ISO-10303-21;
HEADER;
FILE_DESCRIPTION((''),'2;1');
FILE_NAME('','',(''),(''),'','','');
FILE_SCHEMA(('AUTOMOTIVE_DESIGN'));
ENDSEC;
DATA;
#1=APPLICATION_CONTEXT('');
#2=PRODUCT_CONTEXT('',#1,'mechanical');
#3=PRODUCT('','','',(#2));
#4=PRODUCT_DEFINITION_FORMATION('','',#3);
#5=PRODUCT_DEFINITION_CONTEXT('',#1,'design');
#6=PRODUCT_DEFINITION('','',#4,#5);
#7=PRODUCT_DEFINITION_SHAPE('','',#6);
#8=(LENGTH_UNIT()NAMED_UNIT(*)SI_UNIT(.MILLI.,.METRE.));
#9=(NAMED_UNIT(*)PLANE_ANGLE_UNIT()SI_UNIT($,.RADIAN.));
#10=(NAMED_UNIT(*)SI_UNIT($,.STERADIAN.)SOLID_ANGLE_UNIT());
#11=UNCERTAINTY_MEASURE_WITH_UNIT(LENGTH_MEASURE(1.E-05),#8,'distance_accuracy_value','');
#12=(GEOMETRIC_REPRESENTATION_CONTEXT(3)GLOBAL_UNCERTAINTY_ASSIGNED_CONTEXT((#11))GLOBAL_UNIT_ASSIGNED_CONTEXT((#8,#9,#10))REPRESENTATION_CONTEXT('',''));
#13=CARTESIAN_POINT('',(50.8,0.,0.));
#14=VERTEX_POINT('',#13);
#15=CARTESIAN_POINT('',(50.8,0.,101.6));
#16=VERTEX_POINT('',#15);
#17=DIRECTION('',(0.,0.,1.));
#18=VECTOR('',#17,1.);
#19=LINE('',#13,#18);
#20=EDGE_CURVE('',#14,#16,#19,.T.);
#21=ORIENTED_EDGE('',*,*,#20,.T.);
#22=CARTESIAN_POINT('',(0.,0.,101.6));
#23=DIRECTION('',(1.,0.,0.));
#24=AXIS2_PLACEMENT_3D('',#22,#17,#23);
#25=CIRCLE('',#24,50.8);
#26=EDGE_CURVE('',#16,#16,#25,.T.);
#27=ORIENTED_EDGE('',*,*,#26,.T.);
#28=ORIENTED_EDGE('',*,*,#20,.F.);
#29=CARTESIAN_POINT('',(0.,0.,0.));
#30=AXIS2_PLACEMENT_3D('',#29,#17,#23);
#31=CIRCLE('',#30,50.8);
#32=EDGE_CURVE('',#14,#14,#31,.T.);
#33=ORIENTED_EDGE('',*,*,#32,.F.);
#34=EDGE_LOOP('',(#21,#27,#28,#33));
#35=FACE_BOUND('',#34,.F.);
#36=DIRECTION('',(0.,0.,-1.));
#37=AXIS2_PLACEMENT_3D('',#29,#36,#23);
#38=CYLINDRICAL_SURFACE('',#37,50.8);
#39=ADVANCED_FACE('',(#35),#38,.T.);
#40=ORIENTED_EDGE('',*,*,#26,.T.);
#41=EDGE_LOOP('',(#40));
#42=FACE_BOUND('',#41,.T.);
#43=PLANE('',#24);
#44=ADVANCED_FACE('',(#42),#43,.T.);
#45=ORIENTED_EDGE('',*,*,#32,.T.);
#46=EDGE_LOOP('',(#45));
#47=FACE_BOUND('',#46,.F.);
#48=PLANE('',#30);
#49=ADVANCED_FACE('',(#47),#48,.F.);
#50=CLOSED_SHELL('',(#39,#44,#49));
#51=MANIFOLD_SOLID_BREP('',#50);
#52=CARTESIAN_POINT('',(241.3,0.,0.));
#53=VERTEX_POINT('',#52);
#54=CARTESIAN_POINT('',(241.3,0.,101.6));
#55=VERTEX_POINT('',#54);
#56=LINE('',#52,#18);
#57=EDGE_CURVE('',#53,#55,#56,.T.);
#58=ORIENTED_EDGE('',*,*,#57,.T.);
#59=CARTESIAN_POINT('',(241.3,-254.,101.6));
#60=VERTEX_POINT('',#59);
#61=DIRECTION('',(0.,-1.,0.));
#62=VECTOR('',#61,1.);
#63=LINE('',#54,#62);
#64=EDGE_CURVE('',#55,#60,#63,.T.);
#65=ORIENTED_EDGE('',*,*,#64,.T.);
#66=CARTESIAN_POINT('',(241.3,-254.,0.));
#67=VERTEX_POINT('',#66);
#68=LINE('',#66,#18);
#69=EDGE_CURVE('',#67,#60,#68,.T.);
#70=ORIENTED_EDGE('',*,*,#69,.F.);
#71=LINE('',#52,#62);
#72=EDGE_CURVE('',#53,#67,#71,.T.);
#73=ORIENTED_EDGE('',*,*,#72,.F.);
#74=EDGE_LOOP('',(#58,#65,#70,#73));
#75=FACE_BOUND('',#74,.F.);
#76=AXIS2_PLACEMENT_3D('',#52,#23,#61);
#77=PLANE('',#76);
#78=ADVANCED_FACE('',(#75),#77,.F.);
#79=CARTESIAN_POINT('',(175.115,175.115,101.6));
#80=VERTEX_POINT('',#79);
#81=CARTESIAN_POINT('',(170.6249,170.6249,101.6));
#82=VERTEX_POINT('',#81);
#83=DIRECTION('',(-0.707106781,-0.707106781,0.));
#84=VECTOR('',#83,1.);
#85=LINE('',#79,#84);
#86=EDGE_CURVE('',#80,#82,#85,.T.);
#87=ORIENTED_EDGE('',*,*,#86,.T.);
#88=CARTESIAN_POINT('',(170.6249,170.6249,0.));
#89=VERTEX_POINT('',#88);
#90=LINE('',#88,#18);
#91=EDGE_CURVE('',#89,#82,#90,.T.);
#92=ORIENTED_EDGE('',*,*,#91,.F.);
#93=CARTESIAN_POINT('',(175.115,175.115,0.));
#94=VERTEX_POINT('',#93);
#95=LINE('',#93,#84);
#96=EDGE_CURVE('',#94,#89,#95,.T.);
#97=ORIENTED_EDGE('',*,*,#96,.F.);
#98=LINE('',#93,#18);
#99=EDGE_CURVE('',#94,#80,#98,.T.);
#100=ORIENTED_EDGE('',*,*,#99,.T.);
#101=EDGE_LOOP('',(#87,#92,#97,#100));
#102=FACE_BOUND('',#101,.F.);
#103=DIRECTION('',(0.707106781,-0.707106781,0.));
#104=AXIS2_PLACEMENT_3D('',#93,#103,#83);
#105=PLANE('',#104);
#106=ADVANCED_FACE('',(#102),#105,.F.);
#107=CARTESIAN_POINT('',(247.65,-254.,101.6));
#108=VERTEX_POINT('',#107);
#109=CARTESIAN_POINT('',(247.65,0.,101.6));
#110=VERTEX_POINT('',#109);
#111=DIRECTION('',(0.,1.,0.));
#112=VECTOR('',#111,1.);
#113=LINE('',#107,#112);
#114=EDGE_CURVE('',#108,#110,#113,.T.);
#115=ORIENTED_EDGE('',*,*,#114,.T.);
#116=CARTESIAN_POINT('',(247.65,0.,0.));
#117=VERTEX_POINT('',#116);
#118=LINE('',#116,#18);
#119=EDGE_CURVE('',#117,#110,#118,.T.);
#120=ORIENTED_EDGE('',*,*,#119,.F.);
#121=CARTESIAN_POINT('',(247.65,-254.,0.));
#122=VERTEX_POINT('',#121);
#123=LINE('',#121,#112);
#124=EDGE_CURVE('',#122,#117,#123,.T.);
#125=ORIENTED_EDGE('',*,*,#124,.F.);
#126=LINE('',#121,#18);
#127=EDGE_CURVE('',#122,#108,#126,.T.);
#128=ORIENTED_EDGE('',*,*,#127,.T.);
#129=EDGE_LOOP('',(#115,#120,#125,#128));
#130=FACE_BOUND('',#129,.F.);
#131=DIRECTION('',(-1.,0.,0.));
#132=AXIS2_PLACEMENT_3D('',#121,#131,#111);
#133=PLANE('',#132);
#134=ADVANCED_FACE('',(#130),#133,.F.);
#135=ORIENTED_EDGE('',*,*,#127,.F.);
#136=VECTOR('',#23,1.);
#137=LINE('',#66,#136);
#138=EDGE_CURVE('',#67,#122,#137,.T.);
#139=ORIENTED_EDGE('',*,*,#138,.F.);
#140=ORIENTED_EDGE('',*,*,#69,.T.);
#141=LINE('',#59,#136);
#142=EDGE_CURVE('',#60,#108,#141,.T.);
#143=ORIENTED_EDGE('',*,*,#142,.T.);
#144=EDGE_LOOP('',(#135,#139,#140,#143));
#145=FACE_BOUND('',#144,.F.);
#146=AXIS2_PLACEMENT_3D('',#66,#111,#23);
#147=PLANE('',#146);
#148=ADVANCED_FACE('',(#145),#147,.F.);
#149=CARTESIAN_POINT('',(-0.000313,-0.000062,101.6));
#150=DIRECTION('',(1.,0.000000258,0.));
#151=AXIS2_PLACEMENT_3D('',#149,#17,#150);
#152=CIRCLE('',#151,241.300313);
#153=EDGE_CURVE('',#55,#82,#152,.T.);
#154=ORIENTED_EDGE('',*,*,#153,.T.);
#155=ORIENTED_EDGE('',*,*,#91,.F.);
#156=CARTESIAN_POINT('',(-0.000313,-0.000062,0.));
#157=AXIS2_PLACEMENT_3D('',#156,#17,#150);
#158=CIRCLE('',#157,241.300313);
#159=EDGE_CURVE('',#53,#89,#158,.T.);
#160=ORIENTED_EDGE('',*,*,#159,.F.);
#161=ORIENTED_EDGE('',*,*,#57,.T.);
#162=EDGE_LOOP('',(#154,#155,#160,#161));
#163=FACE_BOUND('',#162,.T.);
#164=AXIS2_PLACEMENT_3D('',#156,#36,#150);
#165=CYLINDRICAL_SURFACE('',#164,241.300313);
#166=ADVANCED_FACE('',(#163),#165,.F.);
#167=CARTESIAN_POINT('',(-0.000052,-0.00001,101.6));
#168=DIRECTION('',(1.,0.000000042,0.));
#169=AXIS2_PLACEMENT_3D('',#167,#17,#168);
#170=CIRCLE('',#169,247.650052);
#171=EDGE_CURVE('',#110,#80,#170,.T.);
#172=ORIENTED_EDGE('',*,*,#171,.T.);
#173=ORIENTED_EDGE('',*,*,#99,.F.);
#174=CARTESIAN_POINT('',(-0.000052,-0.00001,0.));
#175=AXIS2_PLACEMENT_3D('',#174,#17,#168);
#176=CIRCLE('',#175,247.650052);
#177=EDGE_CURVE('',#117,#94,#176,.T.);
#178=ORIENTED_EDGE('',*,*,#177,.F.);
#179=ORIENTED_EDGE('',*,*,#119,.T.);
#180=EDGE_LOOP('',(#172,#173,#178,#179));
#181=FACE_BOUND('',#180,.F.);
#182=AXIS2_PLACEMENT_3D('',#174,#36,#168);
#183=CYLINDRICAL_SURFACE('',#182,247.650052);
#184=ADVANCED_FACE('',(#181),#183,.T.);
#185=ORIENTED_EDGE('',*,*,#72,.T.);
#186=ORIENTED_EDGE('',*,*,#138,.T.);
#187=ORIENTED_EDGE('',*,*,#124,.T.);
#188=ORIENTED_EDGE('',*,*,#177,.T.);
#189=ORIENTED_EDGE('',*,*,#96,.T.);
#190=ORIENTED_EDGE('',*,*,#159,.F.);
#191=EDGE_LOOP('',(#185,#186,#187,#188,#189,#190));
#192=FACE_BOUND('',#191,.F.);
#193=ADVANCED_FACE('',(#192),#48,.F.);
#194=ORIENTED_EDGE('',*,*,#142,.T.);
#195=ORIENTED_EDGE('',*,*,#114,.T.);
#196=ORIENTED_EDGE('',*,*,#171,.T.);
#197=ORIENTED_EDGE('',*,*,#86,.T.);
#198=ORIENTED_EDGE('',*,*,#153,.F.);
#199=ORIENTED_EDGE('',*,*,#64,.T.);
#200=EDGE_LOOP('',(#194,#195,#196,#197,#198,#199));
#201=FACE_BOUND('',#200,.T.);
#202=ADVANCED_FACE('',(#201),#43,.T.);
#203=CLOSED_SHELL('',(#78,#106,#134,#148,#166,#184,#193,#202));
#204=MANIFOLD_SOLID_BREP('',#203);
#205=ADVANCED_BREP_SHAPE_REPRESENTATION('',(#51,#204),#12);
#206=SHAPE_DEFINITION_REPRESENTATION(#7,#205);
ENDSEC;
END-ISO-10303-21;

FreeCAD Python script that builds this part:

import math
import FreeCAD as App
import Part
import Sketcher
Q = App.Units.Quantity

doc = App.newDocument("Part")
body = doc.addObject("PartDesign::Body", "Body")
body.AllowCompound = True

# Sketch on XY plane
sketch1 = doc.addObject("Sketcher::SketchObject", "Sketch")
body.addObject(sketch1)
sketch1.AttachmentSupport = (doc.XY_Plane, [""])
sketch1.MapMode = "FlatFace"
sketch1.addGeometry([
    Part.ArcOfCircle(Part.Circle(App.Vector(0, 0, 0), App.Vector(0, 0, 1), 241), math.radians(0), math.radians(45)),  # 0
    Part.LineSegment(App.Vector(241, 0, 0), App.Vector(241, -254, 0)),  # 1
    Part.LineSegment(App.Vector(241, -254, 0), App.Vector(248, -254, 0)),  # 2
    Part.LineSegment(App.Vector(248, -254, 0), App.Vector(248, 0, 0)),  # 3
    Part.ArcOfCircle(Part.Circle(App.Vector(0, 0, 0), App.Vector(0, 0, 1), 248), math.radians(0), math.radians(45)),  # 4
    Part.LineSegment(App.Vector(175, 175, 0), App.Vector(171, 171, 0)),  # 5
    Part.Circle(App.Vector(0, 0, 0), App.Vector(0, 0, 1), 51),  # 6
], False)
sketch1.addConstraint([
    Sketcher.Constraint("Tangent", 0, 1, 1, 1),
    Sketcher.Constraint("Coincident", 1, 2, 2, 1),
    Sketcher.Constraint("Coincident", 2, 2, 3, 1),
    Sketcher.Constraint("Tangent", 3, 2, 4, 1),
    Sketcher.Constraint("Coincident", 4, 2, 5, 1),
    Sketcher.Constraint("Coincident", 5, 2, 0, 2),
    Sketcher.Constraint("Vertical", 1),
    Sketcher.Constraint("Horizontal", 2),
    Sketcher.Constraint("Vertical", 3),
    Sketcher.Constraint("Coincident", 0, 3, -1, 1),
    Sketcher.Constraint("Coincident", 4, 3, -1, 1),
    Sketcher.Constraint("Coincident", 6, 3, -1, 1),
    Sketcher.Constraint("Diameter", 6, Q("4 in")),
    Sketcher.Constraint("Radius", 0, Q("9.5 in")),
    Sketcher.Constraint("DistanceY", 1, 2, 1, 1, Q("10 in")),
    Sketcher.Constraint("Radius", 4, Q("9.75 in")),
    Sketcher.Constraint("Angle", 5, Q("-135 deg")),
    Sketcher.Constraint("DistanceX", -1, 1, 4, 2, Q("6.8943 in")),
])
pad1 = doc.addObject("PartDesign::Pad", "Pad")
body.addObject(pad1)
pad1.Profile = sketch1
pad1.Length = Q("4 in")

doc.recompute()
